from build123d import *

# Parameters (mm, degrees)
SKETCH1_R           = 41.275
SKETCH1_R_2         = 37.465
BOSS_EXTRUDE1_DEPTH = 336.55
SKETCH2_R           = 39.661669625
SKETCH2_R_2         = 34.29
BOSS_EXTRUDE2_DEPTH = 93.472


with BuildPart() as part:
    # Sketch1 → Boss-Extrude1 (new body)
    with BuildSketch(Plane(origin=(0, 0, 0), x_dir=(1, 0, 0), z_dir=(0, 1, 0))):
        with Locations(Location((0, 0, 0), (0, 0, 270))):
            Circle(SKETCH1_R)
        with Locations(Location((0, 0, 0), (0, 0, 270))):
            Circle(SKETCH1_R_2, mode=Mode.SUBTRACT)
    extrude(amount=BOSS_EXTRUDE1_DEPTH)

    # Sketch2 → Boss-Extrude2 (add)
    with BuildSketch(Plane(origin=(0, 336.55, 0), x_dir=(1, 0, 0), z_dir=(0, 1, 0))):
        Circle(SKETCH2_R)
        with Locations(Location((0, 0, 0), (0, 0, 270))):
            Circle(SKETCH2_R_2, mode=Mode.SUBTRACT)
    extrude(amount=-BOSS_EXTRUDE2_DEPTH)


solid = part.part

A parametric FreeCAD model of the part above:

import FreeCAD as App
import Part
import Sketcher
from FreeCAD import Vector
Q = App.Units.Quantity

doc = App.newDocument("Part")
params = doc.addObject("Spreadsheet::Sheet", "Params")
for row, (alias, value) in enumerate([
    ("sketch1_diameter", "3.25 in"),
    ("sketch1_diameter2", "2.95 in"),
    ("pad1_length", "13.25 in"),
    ("sketch2_diameter", "2.7 in"),
    ("pad2_length", "3.68 in"),
], start=1):
    params.set(f"A{row}", alias)
    params.set(f"B{row}", "=" + value)
    params.setAlias(f"B{row}", alias)

body = doc.addObject("PartDesign::Body", "Body")

# Sketch on XZ plane
sketch1 = body.newObject("Sketcher::SketchObject", "Sketch")
sketch1.AttachmentSupport = (doc.getObject("XZ_Plane"), [""])
sketch1.MapMode = "FlatFace"
sketch1.addGeometry(Part.Circle(Vector(0, 0, 0), Vector(0, 0, 1), 41.275), False)
sketch1.addGeometry(Part.Circle(Vector(0, 0, 0), Vector(0, 0, 1), 37.465), False)
sketch1.addConstraint(Sketcher.Constraint("Coincident", 0, 3, -1, 1))
sketch1.addConstraint(Sketcher.Constraint("Coincident", 1, 3, -1, 1))
sketch1.addConstraint(Sketcher.Constraint("Diameter", 0, Q("3.25 in")))
sketch1.addConstraint(Sketcher.Constraint("Diameter", 1, Q("2.95 in")))
sketch1.setExpression("Constraints[2]", "Params.sketch1_diameter")
sketch1.setExpression("Constraints[3]", "Params.sketch1_diameter2")
pad1 = body.newObject("PartDesign::Pad", "Pad")
pad1.Profile = sketch1
pad1.setExpression("Length", "Params.pad1_length")
pad1.Reversed = True

# Sketch on XZ plane
sketch2 = body.newObject("Sketcher::SketchObject", "Sketch001")
sketch2.AttachmentSupport = (doc.getObject("XZ_Plane"), [""])
sketch2.MapMode = "FlatFace"
sketch2.AttachmentOffset = App.Placement(Vector(0, 0, -13.25 * 25.4), App.Rotation())
sketch2.addGeometry(Part.Circle(Vector(0, 0, 0), Vector(0, 0, 1), 39.66167), False)
sketch2.addGeometry(Part.Circle(Vector(0, 0, 0), Vector(0, 0, 1), 34.29), False)
sketch2.addConstraint(Sketcher.Constraint("Coincident", 0, 3, -1, 1))
sketch2.addConstraint(Sketcher.Constraint("Coincident", 1, 3, -1, 1))
sketch2.addConstraint(Sketcher.Constraint("Diameter", 1, Q("2.7 in")))
sketch2.addConstraint(Sketcher.Constraint("Diameter", 0, Q("79.323339 mm")))
sketch2.setExpression("Constraints[2]", "Params.sketch2_diameter")
pad2 = body.newObject("PartDesign::Pad", "Pad001")
pad2.Profile = sketch2
pad2.setExpression("Length", "Params.pad2_length")

doc.recompute()
